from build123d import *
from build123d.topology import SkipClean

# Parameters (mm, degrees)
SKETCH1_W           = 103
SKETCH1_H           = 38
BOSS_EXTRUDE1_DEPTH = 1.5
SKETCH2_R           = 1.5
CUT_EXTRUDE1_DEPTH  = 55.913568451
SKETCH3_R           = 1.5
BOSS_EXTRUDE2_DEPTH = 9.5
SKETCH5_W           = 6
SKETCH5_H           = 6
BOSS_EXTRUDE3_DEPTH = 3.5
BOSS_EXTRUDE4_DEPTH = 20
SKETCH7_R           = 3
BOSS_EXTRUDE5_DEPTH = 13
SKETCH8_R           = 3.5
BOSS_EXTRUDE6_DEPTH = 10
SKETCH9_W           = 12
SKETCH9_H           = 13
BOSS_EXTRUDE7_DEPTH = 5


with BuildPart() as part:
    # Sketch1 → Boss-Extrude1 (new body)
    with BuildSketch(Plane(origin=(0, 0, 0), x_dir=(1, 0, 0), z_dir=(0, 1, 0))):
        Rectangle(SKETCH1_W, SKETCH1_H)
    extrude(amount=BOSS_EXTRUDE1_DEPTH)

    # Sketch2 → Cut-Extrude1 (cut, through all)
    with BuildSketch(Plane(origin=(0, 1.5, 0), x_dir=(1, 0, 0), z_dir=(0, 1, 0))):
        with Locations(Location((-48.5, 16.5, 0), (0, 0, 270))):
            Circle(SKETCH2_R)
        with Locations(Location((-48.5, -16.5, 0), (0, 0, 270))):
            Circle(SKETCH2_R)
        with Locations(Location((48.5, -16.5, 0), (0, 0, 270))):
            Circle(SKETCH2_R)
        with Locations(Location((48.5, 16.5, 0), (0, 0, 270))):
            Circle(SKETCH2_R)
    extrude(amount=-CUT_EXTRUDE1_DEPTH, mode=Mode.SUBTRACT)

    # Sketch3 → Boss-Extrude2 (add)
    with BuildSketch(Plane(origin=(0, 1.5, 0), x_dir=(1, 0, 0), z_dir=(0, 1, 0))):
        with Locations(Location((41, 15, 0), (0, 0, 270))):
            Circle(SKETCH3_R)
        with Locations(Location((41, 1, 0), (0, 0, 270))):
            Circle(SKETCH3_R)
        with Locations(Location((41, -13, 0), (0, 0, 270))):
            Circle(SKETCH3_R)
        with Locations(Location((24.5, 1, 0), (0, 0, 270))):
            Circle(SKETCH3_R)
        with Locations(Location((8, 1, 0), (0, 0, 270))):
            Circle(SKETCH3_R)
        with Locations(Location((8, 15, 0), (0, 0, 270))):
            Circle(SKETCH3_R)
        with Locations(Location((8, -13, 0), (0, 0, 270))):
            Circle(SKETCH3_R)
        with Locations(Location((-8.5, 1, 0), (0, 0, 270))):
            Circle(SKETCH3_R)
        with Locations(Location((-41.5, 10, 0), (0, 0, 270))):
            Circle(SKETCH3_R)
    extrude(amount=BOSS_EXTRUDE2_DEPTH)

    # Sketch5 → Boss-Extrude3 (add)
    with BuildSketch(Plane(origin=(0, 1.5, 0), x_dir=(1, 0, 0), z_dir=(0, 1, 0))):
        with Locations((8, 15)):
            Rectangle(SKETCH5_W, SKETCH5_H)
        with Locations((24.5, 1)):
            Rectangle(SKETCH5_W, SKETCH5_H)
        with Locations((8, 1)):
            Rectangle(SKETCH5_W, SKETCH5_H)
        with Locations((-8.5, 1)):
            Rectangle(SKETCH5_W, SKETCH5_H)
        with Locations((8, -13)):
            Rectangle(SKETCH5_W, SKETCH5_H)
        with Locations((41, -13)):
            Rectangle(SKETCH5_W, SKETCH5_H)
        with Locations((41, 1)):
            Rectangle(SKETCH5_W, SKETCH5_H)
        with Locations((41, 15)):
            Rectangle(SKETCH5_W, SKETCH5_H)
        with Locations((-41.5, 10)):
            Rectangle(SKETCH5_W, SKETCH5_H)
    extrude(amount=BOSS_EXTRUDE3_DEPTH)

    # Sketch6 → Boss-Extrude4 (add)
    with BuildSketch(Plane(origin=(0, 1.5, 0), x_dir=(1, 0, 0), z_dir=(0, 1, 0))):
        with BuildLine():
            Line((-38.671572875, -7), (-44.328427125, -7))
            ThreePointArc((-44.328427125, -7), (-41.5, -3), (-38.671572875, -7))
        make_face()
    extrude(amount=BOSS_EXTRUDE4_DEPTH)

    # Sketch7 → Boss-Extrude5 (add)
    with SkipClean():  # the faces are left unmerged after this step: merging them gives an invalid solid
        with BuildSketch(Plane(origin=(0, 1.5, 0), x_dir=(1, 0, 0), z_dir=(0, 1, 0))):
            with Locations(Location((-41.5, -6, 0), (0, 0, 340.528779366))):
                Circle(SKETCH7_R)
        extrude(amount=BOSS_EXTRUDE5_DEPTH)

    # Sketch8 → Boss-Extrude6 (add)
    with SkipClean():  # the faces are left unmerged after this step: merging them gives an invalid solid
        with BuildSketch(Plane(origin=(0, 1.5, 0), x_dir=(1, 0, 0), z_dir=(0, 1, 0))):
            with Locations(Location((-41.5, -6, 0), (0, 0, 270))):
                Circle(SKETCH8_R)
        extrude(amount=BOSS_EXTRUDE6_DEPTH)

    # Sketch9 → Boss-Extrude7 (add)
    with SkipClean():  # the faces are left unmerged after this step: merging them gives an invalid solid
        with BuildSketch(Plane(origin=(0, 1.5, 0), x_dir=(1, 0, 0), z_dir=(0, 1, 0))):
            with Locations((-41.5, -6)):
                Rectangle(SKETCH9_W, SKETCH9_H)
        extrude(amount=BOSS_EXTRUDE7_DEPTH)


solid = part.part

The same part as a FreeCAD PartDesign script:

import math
import FreeCAD as App
import Part
import Sketcher
from FreeCAD import Vector
Q = App.Units.Quantity

doc = App.newDocument("Part")
body = doc.addObject("PartDesign::Body", "Body")

# Sketch on XZ plane
sketch1 = body.newObject("Sketcher::SketchObject", "Sketch")
sketch1.AttachmentSupport = (doc.getObject("XZ_Plane"), [""])
sketch1.MapMode = "FlatFace"
sketch1.addGeometry(Part.LineSegment(Vector(-51.5, -19, 0), Vector(-51.5, 19, 0)), False)
sketch1.addGeometry(Part.LineSegment(Vector(-51.5, 19, 0), Vector(51.5, 19, 0)), False)
sketch1.addGeometry(Part.LineSegment(Vector(51.5, 19, 0), Vector(51.5, -19, 0)), False)
sketch1.addGeometry(Part.LineSegment(Vector(51.5, -19, 0), Vector(-51.5, -19, 0)), False)
sketch1.addConstraint(Sketcher.Constraint("Coincident", 0, 2, 1, 1))
sketch1.addConstraint(Sketcher.Constraint("Coincident", 1, 2, 2, 1))
sketch1.addConstraint(Sketcher.Constraint("Coincident", 2, 2, 3, 1))
sketch1.addConstraint(Sketcher.Constraint("Coincident", 3, 2, 0, 1))
sketch1.addConstraint(Sketcher.Constraint("Vertical", 0))
sketch1.addConstraint(Sketcher.Constraint("Horizontal", 1))
sketch1.addConstraint(Sketcher.Constraint("Vertical", 2))
sketch1.addConstraint(Sketcher.Constraint("Horizontal", 3))
sketch1.addConstraint(Sketcher.Constraint("Symmetric", 0, 2, 2, 2, -1, 1))
sketch1.addConstraint(Sketcher.Constraint("DistanceX", 1, 1, 1, 2, Q("103 mm")))
sketch1.addConstraint(Sketcher.Constraint("DistanceY", 0, 1, 0, 2, Q("38 mm")))
pad1 = body.newObject("PartDesign::Pad", "Pad")
pad1.Profile = sketch1
pad1.Length = 1.5
pad1.Reversed = True

# Sketch on XZ plane
sketch2 = body.newObject("Sketcher::SketchObject", "Sketch001")
sketch2.AttachmentSupport = (doc.getObject("XZ_Plane"), [""])
sketch2.MapMode = "FlatFace"
sketch2.AttachmentOffset = App.Placement(Vector(0, 0, -1.5), App.Rotation())
sketch2.addGeometry(Part.Circle(Vector(-48.5, -16.5, 0), Vector(0, 0, 1), 1.5), False)
sketch2.addGeometry(Part.Circle(Vector(-48.5, 16.5, 0), Vector(0, 0, 1), 1.5), False)
sketch2.addGeometry(Part.Circle(Vector(48.5, 16.5, 0), Vector(0, 0, 1), 1.5), False)
sketch2.addGeometry(Part.Circle(Vector(48.5, -16.5, 0), Vector(0, 0, 1), 1.5), False)
sketch2.addConstraint(Sketcher.Constraint("Equal", 0, 1))
sketch2.addConstraint(Sketcher.Constraint("Equal", 1, 2))
sketch2.addConstraint(Sketcher.Constraint("Equal", 2, 3))
sketch2.addConstraint(Sketcher.Constraint("Symmetric", 0, 3, 2, 3, -1, 1))
sketch2.addConstraint(Sketcher.Constraint("Symmetric", 1, 3, 3, 3, -1, 1))
sketch2.addConstraint(Sketcher.Constraint("Symmetric", 1, 3, 2, 3, -2))
sketch2.addConstraint(Sketcher.Constraint("Diameter", 0, Q("3 mm")))
sketch2.addConstraint(Sketcher.Constraint("DistanceY", 0, 3, 1, 3, Q("33 mm")))
sketch2.addConstraint(Sketcher.Constraint("DistanceX", 1, 3, 2, 3, Q("97 mm")))
pocket1 = body.newObject("PartDesign::Pocket", "Pocket")
pocket1.Profile = sketch2
pocket1.Type = "ThroughAll"
pocket1.Reversed = True

# Sketch on XZ plane
sketch3 = body.newObject("Sketcher::SketchObject", "Sketch002")
sketch3.AttachmentSupport = (doc.getObject("XZ_Plane"), [""])
sketch3.MapMode = "FlatFace"
sketch3.AttachmentOffset = App.Placement(Vector(0, 0, -1.5), App.Rotation())
sketch3.addGeometry(Part.Circle(Vector(41, -15, 0), Vector(0, 0, 1), 1.5), False)
sketch3.addGeometry(Part.Circle(Vector(41, -1, 0), Vector(0, 0, 1), 1.5), False)
sketch3.addGeometry(Part.Circle(Vector(41, 13, 0), Vector(0, 0, 1), 1.5), False)
sketch3.addGeometry(Part.Circle(Vector(24.5, -1, 0), Vector(0, 0, 1), 1.5), False)
sketch3.addGeometry(Part.Circle(Vector(8, -1, 0), Vector(0, 0, 1), 1.5), False)
sketch3.addGeometry(Part.Circle(Vector(8, -15, 0), Vector(0, 0, 1), 1.5), False)
sketch3.addGeometry(Part.Circle(Vector(8, 13, 0), Vector(0, 0, 1), 1.5), False)
sketch3.addGeometry(Part.Circle(Vector(-8.5, -1, 0), Vector(0, 0, 1), 1.5), False)
sketch3.addGeometry(Part.Circle(Vector(-41.5, -10, 0), Vector(0, 0, 1), 1.5), False)
sketch3.addConstraint(Sketcher.Constraint("Equal", 0, 1))
sketch3.addConstraint(Sketcher.Constraint("Equal", 1, 2))
sketch3.addConstraint(Sketcher.Constraint("Equal", 2, 3))
sketch3.addConstraint(Sketcher.Constraint("Equal", 3, 4))
sketch3.addConstraint(Sketcher.Constraint("Equal", 4, 5))
sketch3.addConstraint(Sketcher.Constraint("Equal", 5, 6))
sketch3.addConstraint(Sketcher.Constraint("Equal", 6, 7))
sketch3.addConstraint(Sketcher.Constraint("Equal", 7, 8))
sketch3.addConstraint(Sketcher.Constraint("Horizontal", 1, 3, 3, 3))
sketch3.addConstraint(Sketcher.Constraint("Horizontal", 3, 3, 4, 3))
sketch3.addConstraint(Sketcher.Constraint("Horizontal", 0, 3, 5, 3))
sketch3.addConstraint(Sketcher.Constraint("Horizontal", 2, 3, 6, 3))
sketch3.addConstraint(Sketcher.Constraint("Horizontal", 4, 3, 7, 3))
sketch3.addConstraint(Sketcher.Constraint("Vertical", 0, 3, 1, 3))
sketch3.addConstraint(Sketcher.Constraint("Vertical", 1, 3, 2, 3))
sketch3.addConstraint(Sketcher.Constraint("Vertical", 4, 3, 5, 3))
sketch3.addConstraint(Sketcher.Constraint("Vertical", 5, 3, 6, 3))
sketch3.addConstraint(Sketcher.Constraint("Diameter", 0, Q("3 mm")))
sketch3.addConstraint(Sketcher.Constraint("DistanceX", -1, 1, 0, 3, Q("41 mm")))
sketch3.addConstraint(Sketcher.Constraint("DistanceY", 0, 3, -1, 1, Q("15 mm")))
sketch3.addConstraint(Sketcher.Constraint("DistanceY", 1, 3, -1, 1, Q("1 mm")))
sketch3.addConstraint(Sketcher.Constraint("DistanceY", -1, 1, 2, 3, Q("13 mm")))
sketch3.addConstraint(Sketcher.Constraint("DistanceX", -1, 1, 4, 3, Q("8 mm")))
sketch3.addConstraint(Sketcher.Constraint("DistanceY", 8, 3, -1, 1, Q("10 mm")))
sketch3.addConstraint(Sketcher.Constraint("DistanceX", 7, 3, 3, 3, Q("33 mm")))
sketch3.addConstraint(Sketcher.Constraint("DistanceX", 8, 3, 7, 3, Q("33 mm")))
sketch3.addConstraint(Sketcher.Constraint("DistanceX", -1, 1, 3, 3, Q("24.5 mm")))
pad2 = body.newObject("PartDesign::Pad", "Pad001")
pad2.Profile = sketch3
pad2.Length = 9.5
pad2.Reversed = True

# Sketch on XZ plane
sketch4 = body.newObject("Sketcher::SketchObject", "Sketch003")
sketch4.AttachmentSupport = (doc.getObject("XZ_Plane"), [""])
sketch4.MapMode = "FlatFace"
sketch4.AttachmentOffset = App.Placement(Vector(0, 0, -1.5), App.Rotation())
sketch4.addGeometry(Part.LineSegment(Vector(5, -18, 0), Vector(5, -12, 0)), False)
sketch4.addGeometry(Part.LineSegment(Vector(5, -12, 0), Vector(11, -12, 0)), False)
sketch4.addGeometry(Part.LineSegment(Vector(11, -12, 0), Vector(11, -18, 0)), False)
sketch4.addGeometry(Part.LineSegment(Vector(11, -18, 0), Vector(5, -18, 0)), False)
sketch4.addGeometry(Part.LineSegment(Vector(21.5, -4, 0), Vector(21.5, 2, 0)), False)
sketch4.addGeometry(Part.LineSegment(Vector(21.5, 2, 0), Vector(27.5, 2, 0)), False)
sketch4.addGeometry(Part.LineSegment(Vector(27.5, 2, 0), Vector(27.5, -4, 0)), False)
sketch4.addGeometry(Part.LineSegment(Vector(27.5, -4, 0), Vector(21.5, -4, 0)), False)
sketch4.addGeometry(Part.LineSegment(Vector(5, -4, 0), Vector(5, 2, 0)), False)
sketch4.addGeometry(Part.LineSegment(Vector(5, 2, 0), Vector(11, 2, 0)), False)
sketch4.addGeometry(Part.LineSegment(Vector(11, 2, 0), Vector(11, -4, 0)), False)
sketch4.addGeometry(Part.LineSegment(Vector(11, -4, 0), Vector(5, -4, 0)), False)
sketch4.addGeometry(Part.LineSegment(Vector(-11.5, -4, 0), Vector(-11.5, 2, 0)), False)
sketch4.addGeometry(Part.LineSegment(Vector(-11.5, 2, 0), Vector(-5.5, 2, 0)), False)
sketch4.addGeometry(Part.LineSegment(Vector(-5.5, 2, 0), Vector(-5.5, -4, 0)), False)
sketch4.addGeometry(Part.LineSegment(Vector(-5.5, -4, 0), Vector(-11.5, -4, 0)), False)
sketch4.addGeometry(Part.LineSegment(Vector(5, 10, 0), Vector(5, 16, 0)), False)
sketch4.addGeometry(Part.LineSegment(Vector(5, 16, 0), Vector(11, 16, 0)), False)
sketch4.addGeometry(Part.LineSegment(Vector(11, 16, 0), Vector(11, 10, 0)), False)
sketch4.addGeometry(Part.LineSegment(Vector(11, 10, 0), Vector(5, 10, 0)), False)
sketch4.addGeometry(Part.LineSegment(Vector(38, 10, 0), Vector(38, 16, 0)), False)
sketch4.addGeometry(Part.LineSegment(Vector(38, 16, 0), Vector(44, 16, 0)), False)
sketch4.addGeometry(Part.LineSegment(Vector(44, 16, 0), Vector(44, 10, 0)), False)
sketch4.addGeometry(Part.LineSegment(Vector(44, 10, 0), Vector(38, 10, 0)), False)
sketch4.addGeometry(Part.LineSegment(Vector(38, -4, 0), Vector(38, 2, 0)), False)
sketch4.addGeometry(Part.LineSegment(Vector(38, 2, 0), Vector(44, 2, 0)), False)
sketch4.addGeometry(Part.LineSegment(Vector(44, 2, 0), Vector(44, -4, 0)), False)
sketch4.addGeometry(Part.LineSegment(Vector(44, -4, 0), Vector(38, -4, 0)), False)
sketch4.addGeometry(Part.LineSegment(Vector(38, -18, 0), Vector(38, -12, 0)), False)
sketch4.addGeometry(Part.LineSegment(Vector(38, -12, 0), Vector(44, -12, 0)), False)
sketch4.addGeometry(Part.LineSegment(Vector(44, -12, 0), Vector(44, -18, 0)), False)
sketch4.addGeometry(Part.LineSegment(Vector(44, -18, 0), Vector(38, -18, 0)), False)
sketch4.addGeometry(Part.LineSegment(Vector(-44.5, -13, 0), Vector(-44.5, -7, 0)), False)
sketch4.addGeometry(Part.LineSegment(Vector(-44.5, -7, 0), Vector(-38.5, -7, 0)), False)
sketch4.addGeometry(Part.LineSegment(Vector(-38.5, -7, 0), Vector(-38.5, -13, 0)), False)
sketch4.addGeometry(Part.LineSegment(Vector(-38.5, -13, 0), Vector(-44.5, -13, 0)), False)
sketch4.addConstraint(Sketcher.Constraint("Coincident", 0, 2, 1, 1))
sketch4.addConstraint(Sketcher.Constraint("Coincident", 1, 2, 2, 1))
sketch4.addConstraint(Sketcher.Constraint("Coincident", 2, 2, 3, 1))
sketch4.addConstraint(Sketcher.Constraint("Coincident", 3, 2, 0, 1))
sketch4.addConstraint(Sketcher.Constraint("Coincident", 4, 2, 5, 1))
sketch4.addConstraint(Sketcher.Constraint("Coincident", 5, 2, 6, 1))
sketch4.addConstraint(Sketcher.Constraint("Coincident", 6, 2, 7, 1))
sketch4.addConstraint(Sketcher.Constraint("Coincident", 7, 2, 4, 1))
sketch4.addConstraint(Sketcher.Constraint("Coincident", 8, 2, 9, 1))
sketch4.addConstraint(Sketcher.Constraint("Coincident", 9, 2, 10, 1))
sketch4.addConstraint(Sketcher.Constraint("Coincident", 10, 2, 11, 1))
sketch4.addConstraint(Sketcher.Constraint("Coincident", 11, 2, 8, 1))
sketch4.addConstraint(Sketcher.Constraint("Coincident", 12, 2, 13, 1))
sketch4.addConstraint(Sketcher.Constraint("Coincident", 13, 2, 14, 1))
sketch4.addConstraint(Sketcher.Constraint("Coincident", 14, 2, 15, 1))
sketch4.addConstraint(Sketcher.Constraint("Coincident", 15, 2, 12, 1))
sketch4.addConstraint(Sketcher.Constraint("Coincident", 16, 2, 17, 1))
sketch4.addConstraint(Sketcher.Constraint("Coincident", 17, 2, 18, 1))
sketch4.addConstraint(Sketcher.Constraint("Coincident", 18, 2, 19, 1))
sketch4.addConstraint(Sketcher.Constraint("Coincident", 19, 2, 16, 1))
sketch4.addConstraint(Sketcher.Constraint("Coincident", 20, 2, 21, 1))
sketch4.addConstraint(Sketcher.Constraint("Coincident", 21, 2, 22, 1))
sketch4.addConstraint(Sketcher.Constraint("Coincident", 22, 2, 23, 1))
sketch4.addConstraint(Sketcher.Constraint("Coincident", 23, 2, 20, 1))
sketch4.addConstraint(Sketcher.Constraint("Coincident", 24, 2, 25, 1))
sketch4.addConstraint(Sketcher.Constraint("Coincident", 25, 2, 26, 1))
sketch4.addConstraint(Sketcher.Constraint("Coincident", 26, 2, 27, 1))
sketch4.addConstraint(Sketcher.Constraint("Coincident", 27, 2, 24, 1))
sketch4.addConstraint(Sketcher.Constraint("Coincident", 28, 2, 29, 1))
sketch4.addConstraint(Sketcher.Constraint("Coincident", 29, 2, 30, 1))
sketch4.addConstraint(Sketcher.Constraint("Coincident", 30, 2, 31, 1))
sketch4.addConstraint(Sketcher.Constraint("Coincident", 31, 2, 28, 1))
sketch4.addConstraint(Sketcher.Constraint("Coincident", 32, 2, 33, 1))
sketch4.addConstraint(Sketcher.Constraint("Coincident", 33, 2, 34, 1))
sketch4.addConstraint(Sketcher.Constraint("Coincident", 34, 2, 35, 1))
sketch4.addConstraint(Sketcher.Constraint("Coincident", 35, 2, 32, 1))
sketch4.addConstraint(Sketcher.Constraint("Vertical", 0))
sketch4.addConstraint(Sketcher.Constraint("Horizontal", 1))
sketch4.addConstraint(Sketcher.Constraint("Vertical", 2))
sketch4.addConstraint(Sketcher.Constraint("Horizontal", 3))
sketch4.addConstraint(Sketcher.Constraint("Vertical", 4))
sketch4.addConstraint(Sketcher.Constraint("Horizontal", 5))
sketch4.addConstraint(Sketcher.Constraint("Vertical", 6))
sketch4.addConstraint(Sketcher.Constraint("Horizontal", 7))
sketch4.addConstraint(Sketcher.Constraint("Vertical", 8))
sketch4.addConstraint(Sketcher.Constraint("Horizontal", 9))
sketch4.addConstraint(Sketcher.Constraint("Vertical", 10))
sketch4.addConstraint(Sketcher.Constraint("Horizontal", 11))
sketch4.addConstraint(Sketcher.Constraint("Vertical", 12))
sketch4.addConstraint(Sketcher.Constraint("Horizontal", 13))
sketch4.addConstraint(Sketcher.Constraint("Vertical", 14))
sketch4.addConstraint(Sketcher.Constraint("Horizontal", 15))
sketch4.addConstraint(Sketcher.Constraint("Vertical", 16))
sketch4.addConstraint(Sketcher.Constraint("Horizontal", 17))
sketch4.addConstraint(Sketcher.Constraint("Vertical", 18))
sketch4.addConstraint(Sketcher.Constraint("Horizontal", 19))
sketch4.addConstraint(Sketcher.Constraint("Vertical", 20))
sketch4.addConstraint(Sketcher.Constraint("Horizontal", 21))
sketch4.addConstraint(Sketcher.Constraint("Vertical", 22))
sketch4.addConstraint(Sketcher.Constraint("Horizontal", 23))
sketch4.addConstraint(Sketcher.Constraint("Vertical", 24))
sketch4.addConstraint(Sketcher.Constraint("Horizontal", 25))
sketch4.addConstraint(Sketcher.Constraint("Vertical", 26))
sketch4.addConstraint(Sketcher.Constraint("Horizontal", 27))
sketch4.addConstraint(Sketcher.Constraint("Vertical", 28))
sketch4.addConstraint(Sketcher.Constraint("Horizontal", 29))
sketch4.addConstraint(Sketcher.Constraint("Vertical", 30))
sketch4.addConstraint(Sketcher.Constraint("Horizontal", 31))
sketch4.addConstraint(Sketcher.Constraint("Vertical", 32))
sketch4.addConstraint(Sketcher.Constraint("Horizontal", 33))
sketch4.addConstraint(Sketcher.Constraint("Vertical", 34))
sketch4.addConstraint(Sketcher.Constraint("Horizontal", 35))
sketch4.addConstraint(Sketcher.Constraint("Horizontal", 5, 2, 8, 2))
sketch4.addConstraint(Sketcher.Constraint("Horizontal", 7, 2, 10, 2))
sketch4.addConstraint(Sketcher.Constraint("Horizontal", 9, 2, 12, 2))
sketch4.addConstraint(Sketcher.Constraint("Horizontal", 11, 2, 14, 2))
sketch4.addConstraint(Sketcher.Constraint("Horizontal", 17, 2, 20, 2))
sketch4.addConstraint(Sketcher.Constraint("Horizontal", 19, 2, 22, 2))
sketch4.addConstraint(Sketcher.Constraint("Horizontal", 13, 2, 24, 2))
sketch4.addConstraint(Sketcher.Constraint("Horizontal", 15, 2, 26, 2))
sketch4.addConstraint(Sketcher.Constraint("Horizontal", 1, 2, 28, 2))
sketch4.addConstraint(Sketcher.Constraint("Horizontal", 3, 2, 30, 2))
sketch4.addConstraint(Sketcher.Constraint("Vertical", 3, 2, 8, 2))
sketch4.addConstraint(Sketcher.Constraint("Vertical", 2, 2, 9, 2))
sketch4.addConstraint(Sketcher.Constraint("Vertical", 11, 2, 16, 2))
sketch4.addConstraint(Sketcher.Constraint("Vertical", 10, 2, 17, 2))
sketch4.addConstraint(Sketcher.Constraint("Vertical", 23, 2, 24, 2))
sketch4.addConstraint(Sketcher.Constraint("Vertical", 22, 2, 25, 2))
sketch4.addConstraint(Sketcher.Constraint("Vertical", 27, 2, 28, 2))
sketch4.addConstraint(Sketcher.Constraint("Vertical", 26, 2, 29, 2))
sketch4.addConstraint(Sketcher.Constraint("Equal", 3, 5))
sketch4.addConstraint(Sketcher.Constraint("Equal", 11, 13))
sketch4.addConstraint(Sketcher.Constraint("Equal", 19, 21))
sketch4.addConstraint(Sketcher.Constraint("Equal", 31, 33))
sketch4.addConstraint(Sketcher.Constraint("Equal", 35, 0))
sketch4.addConstraint(Sketcher.Constraint("Equal", 2, 4))
sketch4.addConstraint(Sketcher.Constraint("Equal", 14, 16))
sketch4.addConstraint(Sketcher.Constraint("Equal", 30, 32))
sketch4.addConstraint(Sketcher.Constraint("DistanceX", 1, 1, 1, 2, Q("6 mm")))
sketch4.addConstraint(Sketcher.Constraint("DistanceX", -1, 1, 0, 2, Q("5 mm")))
sketch4.addConstraint(Sketcher.Constraint("DistanceY", 0, 2, -1, 1, Q("12 mm")))
sketch4.addConstraint(Sketcher.Constraint("DistanceY", -1, 1, 4, 2, Q("2 mm")))
sketch4.addConstraint(Sketcher.Constraint("DistanceY", -1, 1, 16, 2, Q("16 mm")))
sketch4.addConstraint(Sketcher.Constraint("DistanceX", -1, 1, 20, 2, Q("38 mm")))
sketch4.addConstraint(Sketcher.Constraint("DistanceY", 32, 2, -1, 1, Q("7 mm")))
sketch4.addConstraint(Sketcher.Constraint("DistanceX", 32, 2, 15, 2, Q("33 mm")))
sketch4.addConstraint(Sketcher.Constraint("DistanceX", -1, 1, 4, 2, Q("21.5 mm")))
sketch4.addConstraint(Sketcher.Constraint("DistanceX", 12, 2, -1, 1, Q("11.5 mm")))
pad3 = body.newObject("PartDesign::Pad", "Pad002")
pad3.Profile = sketch4
pad3.Length = 3.5
pad3.Reversed = True

# Sketch on XZ plane
sketch5 = body.newObject("Sketcher::SketchObject", "Sketch004")
sketch5.AttachmentSupport = (doc.getObject("XZ_Plane"), [""])
sketch5.MapMode = "FlatFace"
sketch5.AttachmentOffset = App.Placement(Vector(0, 0, -1.5), App.Rotation())
sketch5.addGeometry(Part.LineSegment(Vector(-44.328427, 7, 0), Vector(-38.671573, 7, 0)), False)
sketch5.addGeometry(Part.ArcOfCircle(Part.Circle(Vector(-41.5, 6, 0), Vector(0, 0, 1), 3), math.radians(160.528779), math.radians(379.471221)), False)
sketch5.addConstraint(Sketcher.Constraint("Coincident", 0, 1, 1, 1))
sketch5.addConstraint(Sketcher.Constraint("Coincident", 1, 2, 0, 2))
sketch5.addConstraint(Sketcher.Constraint("Horizontal", 0))
sketch5.addConstraint(Sketcher.Constraint("Radius", 1, Q("3 mm")))
sketch5.addConstraint(Sketcher.Constraint("DistanceY", -1, 1, 1, 3, Q("6 mm")))
sketch5.addConstraint(Sketcher.Constraint("DistanceY", -1, 1, 0, 1, Q("7 mm")))
sketch5.addConstraint(Sketcher.Constraint("DistanceX", 1, 3, -1, 1, Q("41.5 mm")))
pad4 = body.newObject("PartDesign::Pad", "Pad003")
pad4.Profile = sketch5
pad4.Length = 20
pad4.Reversed = True

# Sketch on XZ plane
sketch6 = body.newObject("Sketcher::SketchObject", "Sketch005")
sketch6.AttachmentSupport = (doc.getObject("XZ_Plane"), [""])
sketch6.MapMode = "FlatFace"
sketch6.AttachmentOffset = App.Placement(Vector(0, 0, -1.5), App.Rotation())
sketch6.addGeometry(Part.Circle(Vector(-41.5, 6, 0), Vector(0, 0, 1), 3), False)
sketch6.addConstraint(Sketcher.Constraint("Diameter", 0, Q("6 mm")))
sketch6.addConstraint(Sketcher.Constraint("DistanceY", -1, 1, 0, 3, Q("6 mm")))
sketch6.addConstraint(Sketcher.Constraint("DistanceX", 0, 3, -1, 1, Q("41.5 mm")))
pad5 = body.newObject("PartDesign::Pad", "Pad004")
pad5.Profile = sketch6
pad5.Length = 13
pad5.Reversed = True

# Sketch on XZ plane
sketch7 = body.newObject("Sketcher::SketchObject", "Sketch006")
sketch7.AttachmentSupport = (doc.getObject("XZ_Plane"), [""])
sketch7.MapMode = "FlatFace"
sketch7.AttachmentOffset = App.Placement(Vector(0, 0, -1.5), App.Rotation())
sketch7.addGeometry(Part.Circle(Vector(-41.5, 6, 0), Vector(0, 0, 1), 3.5), False)
sketch7.addConstraint(Sketcher.Constraint("Diameter", 0, Q("7 mm")))
sketch7.addConstraint(Sketcher.Constraint("DistanceY", -1, 1, 0, 3, Q("6 mm")))
sketch7.addConstraint(Sketcher.Constraint("DistanceX", 0, 3, -1, 1, Q("41.5 mm")))
pad6 = body.newObject("PartDesign::Pad", "Pad005")
pad6.Profile = sketch7
pad6.Length = 10
pad6.Reversed = True

# Sketch on XZ plane
sketch8 = body.newObject("Sketcher::SketchObject", "Sketch007")
sketch8.AttachmentSupport = (doc.getObject("XZ_Plane"), [""])
sketch8.MapMode = "FlatFace"
sketch8.AttachmentOffset = App.Placement(Vector(0, 0, -1.5), App.Rotation())
sketch8.addGeometry(Part.LineSegment(Vector(-47.5, -0.5, 0), Vector(-47.5, 12.5, 0)), False)
sketch8.addGeometry(Part.LineSegment(Vector(-47.5, 12.5, 0), Vector(-35.5, 12.5, 0)), False)
sketch8.addGeometry(Part.LineSegment(Vector(-35.5, 12.5, 0), Vector(-35.5, -0.5, 0)), False)
sketch8.addGeometry(Part.LineSegment(Vector(-35.5, -0.5, 0), Vector(-47.5, -0.5, 0)), False)
sketch8.addConstraint(Sketcher.Constraint("Coincident", 0, 2, 1, 1))
sketch8.addConstraint(Sketcher.Constraint("Coincident", 1, 2, 2, 1))
sketch8.addConstraint(Sketcher.Constraint("Coincident", 2, 2, 3, 1))
sketch8.addConstraint(Sketcher.Constraint("Coincident", 3, 2, 0, 1))
sketch8.addConstraint(Sketcher.Constraint("Vertical", 0))
sketch8.addConstraint(Sketcher.Constraint("Horizontal", 1))
sketch8.addConstraint(Sketcher.Constraint("Vertical", 2))
sketch8.addConstraint(Sketcher.Constraint("Horizontal", 3))
sketch8.addConstraint(Sketcher.Constraint("DistanceX", 1, 1, 1, 2, Q("12 mm")))
sketch8.addConstraint(Sketcher.Constraint("DistanceY", 0, 1, 0, 2, Q("13 mm")))
sketch8.addConstraint(Sketcher.Constraint("DistanceX", 0, 2, -1, 1, Q("47.5 mm")))
sketch8.addConstraint(Sketcher.Constraint("DistanceY", -1, 1, 0, 2, Q("12.5 mm")))
pad7 = body.newObject("PartDesign::Pad", "Pad006")
pad7.Profile = sketch8
pad7.Length = 5
pad7.Reversed = True

doc.recompute()
